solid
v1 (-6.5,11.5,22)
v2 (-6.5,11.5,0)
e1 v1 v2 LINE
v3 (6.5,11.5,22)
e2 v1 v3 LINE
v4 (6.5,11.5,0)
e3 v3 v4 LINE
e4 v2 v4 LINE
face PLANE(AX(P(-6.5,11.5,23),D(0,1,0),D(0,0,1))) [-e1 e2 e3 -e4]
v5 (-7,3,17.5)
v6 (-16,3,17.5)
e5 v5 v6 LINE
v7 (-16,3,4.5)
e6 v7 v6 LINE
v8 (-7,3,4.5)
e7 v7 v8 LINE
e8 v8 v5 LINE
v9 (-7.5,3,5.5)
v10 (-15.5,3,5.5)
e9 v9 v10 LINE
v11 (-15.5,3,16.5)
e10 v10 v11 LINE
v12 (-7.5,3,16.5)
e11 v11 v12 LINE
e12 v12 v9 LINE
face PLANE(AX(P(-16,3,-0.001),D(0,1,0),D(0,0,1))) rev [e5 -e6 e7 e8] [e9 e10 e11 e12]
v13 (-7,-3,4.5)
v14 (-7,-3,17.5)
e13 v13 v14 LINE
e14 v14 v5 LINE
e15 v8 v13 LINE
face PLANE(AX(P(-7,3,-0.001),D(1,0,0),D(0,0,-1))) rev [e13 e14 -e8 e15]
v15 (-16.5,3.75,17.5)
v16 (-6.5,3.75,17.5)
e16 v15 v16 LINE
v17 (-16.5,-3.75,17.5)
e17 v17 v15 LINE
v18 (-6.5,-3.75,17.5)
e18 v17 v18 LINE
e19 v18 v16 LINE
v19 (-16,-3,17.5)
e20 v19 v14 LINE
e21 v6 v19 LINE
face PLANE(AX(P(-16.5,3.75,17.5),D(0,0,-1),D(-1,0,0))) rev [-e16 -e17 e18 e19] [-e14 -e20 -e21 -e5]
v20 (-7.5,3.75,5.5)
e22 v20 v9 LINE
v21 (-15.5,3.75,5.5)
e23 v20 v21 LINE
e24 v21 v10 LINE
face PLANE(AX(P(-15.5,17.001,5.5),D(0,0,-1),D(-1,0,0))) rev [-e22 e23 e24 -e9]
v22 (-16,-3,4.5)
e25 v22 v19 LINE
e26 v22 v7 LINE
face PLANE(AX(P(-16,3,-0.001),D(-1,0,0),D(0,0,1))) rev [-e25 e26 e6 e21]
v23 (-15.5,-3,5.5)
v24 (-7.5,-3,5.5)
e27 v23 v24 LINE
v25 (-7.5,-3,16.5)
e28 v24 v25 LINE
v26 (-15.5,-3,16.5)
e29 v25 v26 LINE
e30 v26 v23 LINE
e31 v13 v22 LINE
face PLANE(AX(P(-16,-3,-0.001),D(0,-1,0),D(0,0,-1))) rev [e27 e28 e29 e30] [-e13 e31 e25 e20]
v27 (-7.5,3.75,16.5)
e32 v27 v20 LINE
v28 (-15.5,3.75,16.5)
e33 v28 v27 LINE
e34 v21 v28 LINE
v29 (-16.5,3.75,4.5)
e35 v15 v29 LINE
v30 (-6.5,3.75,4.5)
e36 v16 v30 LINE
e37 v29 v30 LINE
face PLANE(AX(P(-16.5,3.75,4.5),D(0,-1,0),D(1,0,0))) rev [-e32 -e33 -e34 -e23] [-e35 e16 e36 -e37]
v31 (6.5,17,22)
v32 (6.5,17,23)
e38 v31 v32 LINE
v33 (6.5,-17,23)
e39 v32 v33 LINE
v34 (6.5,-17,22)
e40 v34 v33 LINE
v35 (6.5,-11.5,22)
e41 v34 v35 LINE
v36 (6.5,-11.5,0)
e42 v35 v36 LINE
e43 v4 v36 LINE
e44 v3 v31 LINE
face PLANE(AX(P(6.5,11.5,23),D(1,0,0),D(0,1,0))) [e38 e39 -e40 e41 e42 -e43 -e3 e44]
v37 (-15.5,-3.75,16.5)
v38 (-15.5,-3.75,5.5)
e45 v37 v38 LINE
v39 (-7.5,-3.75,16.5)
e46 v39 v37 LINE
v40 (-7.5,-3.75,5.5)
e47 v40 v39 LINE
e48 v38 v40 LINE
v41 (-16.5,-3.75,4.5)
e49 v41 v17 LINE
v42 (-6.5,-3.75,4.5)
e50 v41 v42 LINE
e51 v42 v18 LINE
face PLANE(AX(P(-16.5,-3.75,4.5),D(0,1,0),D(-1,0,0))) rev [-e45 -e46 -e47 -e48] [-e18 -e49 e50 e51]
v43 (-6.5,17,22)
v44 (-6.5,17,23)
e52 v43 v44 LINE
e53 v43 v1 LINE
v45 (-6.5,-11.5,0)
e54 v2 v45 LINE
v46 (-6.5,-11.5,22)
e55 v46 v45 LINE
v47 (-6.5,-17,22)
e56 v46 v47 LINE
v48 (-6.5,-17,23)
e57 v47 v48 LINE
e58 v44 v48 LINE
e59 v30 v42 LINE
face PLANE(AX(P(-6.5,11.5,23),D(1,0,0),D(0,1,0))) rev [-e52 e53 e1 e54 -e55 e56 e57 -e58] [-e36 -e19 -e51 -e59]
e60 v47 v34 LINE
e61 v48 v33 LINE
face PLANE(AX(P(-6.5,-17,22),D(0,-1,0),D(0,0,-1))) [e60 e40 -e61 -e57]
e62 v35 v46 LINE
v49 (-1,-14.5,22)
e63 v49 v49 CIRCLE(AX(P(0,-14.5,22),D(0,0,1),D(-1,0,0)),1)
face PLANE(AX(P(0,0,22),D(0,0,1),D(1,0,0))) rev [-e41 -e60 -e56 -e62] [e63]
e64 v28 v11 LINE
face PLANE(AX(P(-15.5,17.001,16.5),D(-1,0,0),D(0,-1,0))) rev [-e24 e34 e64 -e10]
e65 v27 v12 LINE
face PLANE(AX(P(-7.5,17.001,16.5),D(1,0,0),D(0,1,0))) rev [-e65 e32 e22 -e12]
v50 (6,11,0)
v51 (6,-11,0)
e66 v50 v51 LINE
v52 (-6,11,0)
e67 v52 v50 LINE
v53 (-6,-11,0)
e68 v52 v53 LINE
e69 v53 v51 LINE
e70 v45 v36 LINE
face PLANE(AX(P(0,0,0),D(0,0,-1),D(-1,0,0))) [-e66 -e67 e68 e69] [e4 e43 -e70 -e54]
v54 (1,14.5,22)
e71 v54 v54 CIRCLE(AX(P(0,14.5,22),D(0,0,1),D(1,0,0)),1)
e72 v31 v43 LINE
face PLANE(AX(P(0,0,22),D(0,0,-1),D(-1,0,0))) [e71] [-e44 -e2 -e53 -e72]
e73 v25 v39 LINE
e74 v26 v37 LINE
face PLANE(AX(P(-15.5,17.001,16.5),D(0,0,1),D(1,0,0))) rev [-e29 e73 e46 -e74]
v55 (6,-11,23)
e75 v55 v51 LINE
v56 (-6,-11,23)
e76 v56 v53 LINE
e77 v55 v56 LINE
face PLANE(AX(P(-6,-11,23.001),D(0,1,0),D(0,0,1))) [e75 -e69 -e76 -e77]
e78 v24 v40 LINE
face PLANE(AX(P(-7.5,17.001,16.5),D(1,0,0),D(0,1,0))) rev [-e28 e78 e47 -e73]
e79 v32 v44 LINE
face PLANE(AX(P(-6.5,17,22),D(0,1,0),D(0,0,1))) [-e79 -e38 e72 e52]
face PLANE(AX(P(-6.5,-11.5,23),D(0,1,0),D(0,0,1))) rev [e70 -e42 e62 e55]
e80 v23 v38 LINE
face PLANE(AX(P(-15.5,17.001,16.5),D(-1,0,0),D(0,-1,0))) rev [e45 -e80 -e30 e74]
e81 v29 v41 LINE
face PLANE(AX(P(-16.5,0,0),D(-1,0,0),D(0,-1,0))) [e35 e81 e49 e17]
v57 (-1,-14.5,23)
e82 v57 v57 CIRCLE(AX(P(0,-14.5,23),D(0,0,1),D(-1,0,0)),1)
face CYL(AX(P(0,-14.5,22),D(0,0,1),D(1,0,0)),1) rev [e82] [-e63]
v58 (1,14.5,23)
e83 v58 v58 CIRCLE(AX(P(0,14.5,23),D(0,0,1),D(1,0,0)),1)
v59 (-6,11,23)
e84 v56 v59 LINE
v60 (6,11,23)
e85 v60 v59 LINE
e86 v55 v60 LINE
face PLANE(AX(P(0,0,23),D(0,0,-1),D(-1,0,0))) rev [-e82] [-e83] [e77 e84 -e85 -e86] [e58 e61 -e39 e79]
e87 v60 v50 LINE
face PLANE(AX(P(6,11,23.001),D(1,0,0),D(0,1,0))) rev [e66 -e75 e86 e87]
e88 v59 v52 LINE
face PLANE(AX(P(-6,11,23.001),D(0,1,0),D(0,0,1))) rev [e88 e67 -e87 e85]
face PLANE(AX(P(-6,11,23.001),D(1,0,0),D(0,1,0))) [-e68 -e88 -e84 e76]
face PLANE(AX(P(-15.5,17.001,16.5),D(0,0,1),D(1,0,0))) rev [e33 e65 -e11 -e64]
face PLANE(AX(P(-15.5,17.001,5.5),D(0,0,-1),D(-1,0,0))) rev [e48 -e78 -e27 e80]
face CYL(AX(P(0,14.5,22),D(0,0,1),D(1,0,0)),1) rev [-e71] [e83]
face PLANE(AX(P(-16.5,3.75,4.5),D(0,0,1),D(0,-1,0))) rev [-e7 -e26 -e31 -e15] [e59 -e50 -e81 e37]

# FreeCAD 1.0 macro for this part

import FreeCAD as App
import Part
import Sketcher
from FreeCAD import Vector
Q = App.Units.Quantity


def add_polygon(sketch, points):
    """Adds a closed chain of lines whose ends are joined by coincident constraints."""
    first, n = sketch.GeometryCount, len(points)
    for a, b in zip(points, points[1:] + points[:1]):
        sketch.addGeometry(Part.LineSegment(App.Vector(*a, 0), App.Vector(*b, 0)), False)
    for i in range(n):
        sketch.addConstraint(Sketcher.Constraint("Coincident", first + i, 2, first + (i + 1) % n, 1))

doc = App.newDocument("Part")
body = doc.addObject("PartDesign::Body", "Body")

# Sketch on XY plane
sketch1 = body.newObject("Sketcher::SketchObject", "Sketch")
sketch1.AttachmentSupport = (doc.getObject("XY_Plane"), [""])
sketch1.MapMode = "FlatFace"
add_polygon(sketch1, [(-6, 12), (-6, -12), (6, -12), (6, 12)])  # lines 0-3
sketch1.addConstraint([
    Sketcher.Constraint("Vertical", 0),
    Sketcher.Constraint("Horizontal", 1),
    Sketcher.Constraint("Vertical", 2),
    Sketcher.Constraint("Horizontal", 3),
    Sketcher.Constraint("Symmetric", 0, 2, 2, 2, -1, 1),
    Sketcher.Constraint("DistanceX", 1, 1, 1, 2, Q("13 mm")),
    Sketcher.Constraint("DistanceY", 0, 2, 0, 1, Q("23 mm")),
])
pad1 = body.newObject("PartDesign::Pad", "Pad")
pad1.Profile = sketch1
pad1.Length = 23

# Sketch on XY plane
sketch2 = body.newObject("Sketcher::SketchObject", "Sketch001")
sketch2.AttachmentSupport = (doc.getObject("XY_Plane"), [""])
sketch2.MapMode = "FlatFace"
add_polygon(sketch2, [(-6, 11), (-6, -11), (6, -11), (6, 11)])  # lines 0-3
sketch2.addConstraint([
    Sketcher.Constraint("Vertical", 0),
    Sketcher.Constraint("Horizontal", 1),
    Sketcher.Constraint("Vertical", 2),
    Sketcher.Constraint("Horizontal", 3),
    Sketcher.Constraint("Symmetric", 0, 2, 2, 2, -1, 1),
    Sketcher.Constraint("DistanceX", 1, 1, 1, 2, Q("12 mm")),
    Sketcher.Constraint("DistanceY", 0, 2, 0, 1, Q("22 mm")),
])
pocket1 = body.newObject("PartDesign::Pocket", "Pocket")
pocket1.Profile = sketch2
pocket1.Type = "UpToFirst"
pocket1.Reversed = True

# Sketch on XY plane
sketch3 = body.newObject("Sketcher::SketchObject", "Sketch002")
sketch3.AttachmentSupport = (doc.getObject("XY_Plane"), [""])
sketch3.MapMode = "FlatFace"
sketch3.AttachmentOffset = App.Placement(Vector(0, 0, 23), App.Rotation())
add_polygon(sketch3, [(-6.5, 17), (-6.5, 11.5), (6.5, 11.5), (6.5, 17)])  # lines 0-3
sketch3.addGeometry(Part.Circle(Vector(0, 14.5, 0), Vector(0, 0, 1), 1), False)  # 4
add_polygon(sketch3, [(-6.5, -11.5), (-6.5, -17), (6.5, -17), (6.5, -11.5)])  # lines 5-8
sketch3.addGeometry(Part.Circle(Vector(0, -14.5, 0), Vector(0, 0, 1), 1), False)  # 9
sketch3.addConstraint([
    Sketcher.Constraint("Vertical", 0),
    Sketcher.Constraint("Horizontal", 1),
    Sketcher.Constraint("Vertical", 2),
    Sketcher.Constraint("Horizontal", 3),
    Sketcher.Constraint("Vertical", 5),
    Sketcher.Constraint("Horizontal", 6),
    Sketcher.Constraint("Vertical", 7),
    Sketcher.Constraint("Horizontal", 8),
    Sketcher.Constraint("Equal", 4, 9),
    Sketcher.Constraint("Symmetric", 4, 3, 9, 3, -1, 1),
    Sketcher.Constraint("Symmetric", 2, 2, 5, 2, -1, 1),
    Sketcher.Constraint("Symmetric", 0, 2, 7, 2, -1, 1),
    Sketcher.Constraint("PointOnObject", 4, 3, -2),
    Sketcher.Constraint("Vertical", 3, 2, 5, 2),
    Sketcher.Constraint("Diameter", 4, Q("2 mm")),
    Sketcher.Constraint("DistanceX", 1, 1, 1, 2, Q("13 mm")),
    Sketcher.Constraint("DistanceY", 0, 2, 0, 1, Q("5.5 mm")),
    Sketcher.Constraint("DistanceY", -1, 1, 2, 2, Q("17 mm")),
    Sketcher.Constraint("DistanceY", 9, 3, 4, 3, Q("29 mm")),
])
pad2 = body.newObject("PartDesign::Pad", "Pad001")
pad2.Profile = sketch3
pad2.Length = 1
pad2.Reversed = True

# Sketch on YZ plane
sketch4 = body.newObject("Sketcher::SketchObject", "Sketch003")
sketch4.AttachmentSupport = (doc.getObject("YZ_Plane"), [""])
sketch4.MapMode = "FlatFace"
sketch4.AttachmentOffset = App.Placement(Vector(0, 0, -6.5), App.Rotation())
add_polygon(sketch4, [(4, 4), (-4, 4), (-4, 18), (4, 18)])  # lines 0-3
sketch4.addConstraint([
    Sketcher.Constraint("Horizontal", 0),
    Sketcher.Constraint("Vertical", 1),
    Sketcher.Constraint("Horizontal", 2),
    Sketcher.Constraint("Vertical", 3),
    Sketcher.Constraint("DistanceY", 1, 1, 1, 2, Q("13 mm")),
    Sketcher.Constraint("DistanceX", 0, 2, 0, 1, Q("7.5 mm")),
    Sketcher.Constraint("DistanceY", -1, 1, 0, 2, Q("4.5 mm")),
    Sketcher.Constraint("DistanceX", 0, 2, -1, 1, Q("3.75 mm")),
])
pad3 = body.newObject("PartDesign::Pad", "Pad002")
pad3.Profile = sketch4
pad3.Length = 10
pad3.Reversed = True

# Sketch on XZ plane
sketch5 = body.newObject("Sketcher::SketchObject", "Sketch004")
sketch5.AttachmentSupport = (doc.getObject("XZ_Plane"), [""])
sketch5.MapMode = "FlatFace"
sketch5.AttachmentOffset = App.Placement(Vector(0, 0, 3.75), App.Rotation())
add_polygon(sketch5, [(-8, 6), (-8, 16), (-16, 16), (-16, 6)])  # lines 0-3
sketch5.addConstraint([
    Sketcher.Constraint("Vertical", 0),
    Sketcher.Constraint("Horizontal", 1),
    Sketcher.Constraint("Vertical", 2),
    Sketcher.Constraint("Horizontal", 3),
    Sketcher.Constraint("DistanceX", 1, 2, 1, 1, Q("8 mm")),
    Sketcher.Constraint("DistanceY", 0, 1, 0, 2, Q("11 mm")),
    Sketcher.Constraint("DistanceX", 0, 2, -1, 1, Q("7.5 mm")),
    Sketcher.Constraint("DistanceY", -1, 1, 0, 2, Q("16.5 mm")),
])
pocket2 = body.newObject("PartDesign::Pocket", "Pocket001")
pocket2.Profile = sketch5
pocket2.Type = "UpToFirst"

# Sketch on XY plane
sketch6 = body.newObject("Sketcher::SketchObject", "Sketch005")
sketch6.AttachmentSupport = (doc.getObject("XY_Plane"), [""])
sketch6.MapMode = "FlatFace"
sketch6.AttachmentOffset = App.Placement(Vector(0, 0, 17.5), App.Rotation())
add_polygon(sketch6, [(-16, 3), (-16, -3), (-7, -3), (-7, 3)])  # lines 0-3
sketch6.addConstraint([
    Sketcher.Constraint("Vertical", 0),
    Sketcher.Constraint("Horizontal", 1),
    Sketcher.Constraint("Vertical", 2),
    Sketcher.Constraint("Horizontal", 3),
    Sketcher.Constraint("DistanceX", 1, 1, 1, 2, Q("9 mm")),
    Sketcher.Constraint("DistanceY", 0, 2, 0, 1, Q("6 mm")),
    Sketcher.Constraint("DistanceX", 0, 2, -1, 1, Q("16 mm")),
    Sketcher.Constraint("DistanceY", 0, 2, -1, 1, Q("3 mm")),
])
pocket3 = body.newObject("PartDesign::Pocket", "Pocket002")
pocket3.Profile = sketch6
pocket3.Length = 13

doc.recompute()
